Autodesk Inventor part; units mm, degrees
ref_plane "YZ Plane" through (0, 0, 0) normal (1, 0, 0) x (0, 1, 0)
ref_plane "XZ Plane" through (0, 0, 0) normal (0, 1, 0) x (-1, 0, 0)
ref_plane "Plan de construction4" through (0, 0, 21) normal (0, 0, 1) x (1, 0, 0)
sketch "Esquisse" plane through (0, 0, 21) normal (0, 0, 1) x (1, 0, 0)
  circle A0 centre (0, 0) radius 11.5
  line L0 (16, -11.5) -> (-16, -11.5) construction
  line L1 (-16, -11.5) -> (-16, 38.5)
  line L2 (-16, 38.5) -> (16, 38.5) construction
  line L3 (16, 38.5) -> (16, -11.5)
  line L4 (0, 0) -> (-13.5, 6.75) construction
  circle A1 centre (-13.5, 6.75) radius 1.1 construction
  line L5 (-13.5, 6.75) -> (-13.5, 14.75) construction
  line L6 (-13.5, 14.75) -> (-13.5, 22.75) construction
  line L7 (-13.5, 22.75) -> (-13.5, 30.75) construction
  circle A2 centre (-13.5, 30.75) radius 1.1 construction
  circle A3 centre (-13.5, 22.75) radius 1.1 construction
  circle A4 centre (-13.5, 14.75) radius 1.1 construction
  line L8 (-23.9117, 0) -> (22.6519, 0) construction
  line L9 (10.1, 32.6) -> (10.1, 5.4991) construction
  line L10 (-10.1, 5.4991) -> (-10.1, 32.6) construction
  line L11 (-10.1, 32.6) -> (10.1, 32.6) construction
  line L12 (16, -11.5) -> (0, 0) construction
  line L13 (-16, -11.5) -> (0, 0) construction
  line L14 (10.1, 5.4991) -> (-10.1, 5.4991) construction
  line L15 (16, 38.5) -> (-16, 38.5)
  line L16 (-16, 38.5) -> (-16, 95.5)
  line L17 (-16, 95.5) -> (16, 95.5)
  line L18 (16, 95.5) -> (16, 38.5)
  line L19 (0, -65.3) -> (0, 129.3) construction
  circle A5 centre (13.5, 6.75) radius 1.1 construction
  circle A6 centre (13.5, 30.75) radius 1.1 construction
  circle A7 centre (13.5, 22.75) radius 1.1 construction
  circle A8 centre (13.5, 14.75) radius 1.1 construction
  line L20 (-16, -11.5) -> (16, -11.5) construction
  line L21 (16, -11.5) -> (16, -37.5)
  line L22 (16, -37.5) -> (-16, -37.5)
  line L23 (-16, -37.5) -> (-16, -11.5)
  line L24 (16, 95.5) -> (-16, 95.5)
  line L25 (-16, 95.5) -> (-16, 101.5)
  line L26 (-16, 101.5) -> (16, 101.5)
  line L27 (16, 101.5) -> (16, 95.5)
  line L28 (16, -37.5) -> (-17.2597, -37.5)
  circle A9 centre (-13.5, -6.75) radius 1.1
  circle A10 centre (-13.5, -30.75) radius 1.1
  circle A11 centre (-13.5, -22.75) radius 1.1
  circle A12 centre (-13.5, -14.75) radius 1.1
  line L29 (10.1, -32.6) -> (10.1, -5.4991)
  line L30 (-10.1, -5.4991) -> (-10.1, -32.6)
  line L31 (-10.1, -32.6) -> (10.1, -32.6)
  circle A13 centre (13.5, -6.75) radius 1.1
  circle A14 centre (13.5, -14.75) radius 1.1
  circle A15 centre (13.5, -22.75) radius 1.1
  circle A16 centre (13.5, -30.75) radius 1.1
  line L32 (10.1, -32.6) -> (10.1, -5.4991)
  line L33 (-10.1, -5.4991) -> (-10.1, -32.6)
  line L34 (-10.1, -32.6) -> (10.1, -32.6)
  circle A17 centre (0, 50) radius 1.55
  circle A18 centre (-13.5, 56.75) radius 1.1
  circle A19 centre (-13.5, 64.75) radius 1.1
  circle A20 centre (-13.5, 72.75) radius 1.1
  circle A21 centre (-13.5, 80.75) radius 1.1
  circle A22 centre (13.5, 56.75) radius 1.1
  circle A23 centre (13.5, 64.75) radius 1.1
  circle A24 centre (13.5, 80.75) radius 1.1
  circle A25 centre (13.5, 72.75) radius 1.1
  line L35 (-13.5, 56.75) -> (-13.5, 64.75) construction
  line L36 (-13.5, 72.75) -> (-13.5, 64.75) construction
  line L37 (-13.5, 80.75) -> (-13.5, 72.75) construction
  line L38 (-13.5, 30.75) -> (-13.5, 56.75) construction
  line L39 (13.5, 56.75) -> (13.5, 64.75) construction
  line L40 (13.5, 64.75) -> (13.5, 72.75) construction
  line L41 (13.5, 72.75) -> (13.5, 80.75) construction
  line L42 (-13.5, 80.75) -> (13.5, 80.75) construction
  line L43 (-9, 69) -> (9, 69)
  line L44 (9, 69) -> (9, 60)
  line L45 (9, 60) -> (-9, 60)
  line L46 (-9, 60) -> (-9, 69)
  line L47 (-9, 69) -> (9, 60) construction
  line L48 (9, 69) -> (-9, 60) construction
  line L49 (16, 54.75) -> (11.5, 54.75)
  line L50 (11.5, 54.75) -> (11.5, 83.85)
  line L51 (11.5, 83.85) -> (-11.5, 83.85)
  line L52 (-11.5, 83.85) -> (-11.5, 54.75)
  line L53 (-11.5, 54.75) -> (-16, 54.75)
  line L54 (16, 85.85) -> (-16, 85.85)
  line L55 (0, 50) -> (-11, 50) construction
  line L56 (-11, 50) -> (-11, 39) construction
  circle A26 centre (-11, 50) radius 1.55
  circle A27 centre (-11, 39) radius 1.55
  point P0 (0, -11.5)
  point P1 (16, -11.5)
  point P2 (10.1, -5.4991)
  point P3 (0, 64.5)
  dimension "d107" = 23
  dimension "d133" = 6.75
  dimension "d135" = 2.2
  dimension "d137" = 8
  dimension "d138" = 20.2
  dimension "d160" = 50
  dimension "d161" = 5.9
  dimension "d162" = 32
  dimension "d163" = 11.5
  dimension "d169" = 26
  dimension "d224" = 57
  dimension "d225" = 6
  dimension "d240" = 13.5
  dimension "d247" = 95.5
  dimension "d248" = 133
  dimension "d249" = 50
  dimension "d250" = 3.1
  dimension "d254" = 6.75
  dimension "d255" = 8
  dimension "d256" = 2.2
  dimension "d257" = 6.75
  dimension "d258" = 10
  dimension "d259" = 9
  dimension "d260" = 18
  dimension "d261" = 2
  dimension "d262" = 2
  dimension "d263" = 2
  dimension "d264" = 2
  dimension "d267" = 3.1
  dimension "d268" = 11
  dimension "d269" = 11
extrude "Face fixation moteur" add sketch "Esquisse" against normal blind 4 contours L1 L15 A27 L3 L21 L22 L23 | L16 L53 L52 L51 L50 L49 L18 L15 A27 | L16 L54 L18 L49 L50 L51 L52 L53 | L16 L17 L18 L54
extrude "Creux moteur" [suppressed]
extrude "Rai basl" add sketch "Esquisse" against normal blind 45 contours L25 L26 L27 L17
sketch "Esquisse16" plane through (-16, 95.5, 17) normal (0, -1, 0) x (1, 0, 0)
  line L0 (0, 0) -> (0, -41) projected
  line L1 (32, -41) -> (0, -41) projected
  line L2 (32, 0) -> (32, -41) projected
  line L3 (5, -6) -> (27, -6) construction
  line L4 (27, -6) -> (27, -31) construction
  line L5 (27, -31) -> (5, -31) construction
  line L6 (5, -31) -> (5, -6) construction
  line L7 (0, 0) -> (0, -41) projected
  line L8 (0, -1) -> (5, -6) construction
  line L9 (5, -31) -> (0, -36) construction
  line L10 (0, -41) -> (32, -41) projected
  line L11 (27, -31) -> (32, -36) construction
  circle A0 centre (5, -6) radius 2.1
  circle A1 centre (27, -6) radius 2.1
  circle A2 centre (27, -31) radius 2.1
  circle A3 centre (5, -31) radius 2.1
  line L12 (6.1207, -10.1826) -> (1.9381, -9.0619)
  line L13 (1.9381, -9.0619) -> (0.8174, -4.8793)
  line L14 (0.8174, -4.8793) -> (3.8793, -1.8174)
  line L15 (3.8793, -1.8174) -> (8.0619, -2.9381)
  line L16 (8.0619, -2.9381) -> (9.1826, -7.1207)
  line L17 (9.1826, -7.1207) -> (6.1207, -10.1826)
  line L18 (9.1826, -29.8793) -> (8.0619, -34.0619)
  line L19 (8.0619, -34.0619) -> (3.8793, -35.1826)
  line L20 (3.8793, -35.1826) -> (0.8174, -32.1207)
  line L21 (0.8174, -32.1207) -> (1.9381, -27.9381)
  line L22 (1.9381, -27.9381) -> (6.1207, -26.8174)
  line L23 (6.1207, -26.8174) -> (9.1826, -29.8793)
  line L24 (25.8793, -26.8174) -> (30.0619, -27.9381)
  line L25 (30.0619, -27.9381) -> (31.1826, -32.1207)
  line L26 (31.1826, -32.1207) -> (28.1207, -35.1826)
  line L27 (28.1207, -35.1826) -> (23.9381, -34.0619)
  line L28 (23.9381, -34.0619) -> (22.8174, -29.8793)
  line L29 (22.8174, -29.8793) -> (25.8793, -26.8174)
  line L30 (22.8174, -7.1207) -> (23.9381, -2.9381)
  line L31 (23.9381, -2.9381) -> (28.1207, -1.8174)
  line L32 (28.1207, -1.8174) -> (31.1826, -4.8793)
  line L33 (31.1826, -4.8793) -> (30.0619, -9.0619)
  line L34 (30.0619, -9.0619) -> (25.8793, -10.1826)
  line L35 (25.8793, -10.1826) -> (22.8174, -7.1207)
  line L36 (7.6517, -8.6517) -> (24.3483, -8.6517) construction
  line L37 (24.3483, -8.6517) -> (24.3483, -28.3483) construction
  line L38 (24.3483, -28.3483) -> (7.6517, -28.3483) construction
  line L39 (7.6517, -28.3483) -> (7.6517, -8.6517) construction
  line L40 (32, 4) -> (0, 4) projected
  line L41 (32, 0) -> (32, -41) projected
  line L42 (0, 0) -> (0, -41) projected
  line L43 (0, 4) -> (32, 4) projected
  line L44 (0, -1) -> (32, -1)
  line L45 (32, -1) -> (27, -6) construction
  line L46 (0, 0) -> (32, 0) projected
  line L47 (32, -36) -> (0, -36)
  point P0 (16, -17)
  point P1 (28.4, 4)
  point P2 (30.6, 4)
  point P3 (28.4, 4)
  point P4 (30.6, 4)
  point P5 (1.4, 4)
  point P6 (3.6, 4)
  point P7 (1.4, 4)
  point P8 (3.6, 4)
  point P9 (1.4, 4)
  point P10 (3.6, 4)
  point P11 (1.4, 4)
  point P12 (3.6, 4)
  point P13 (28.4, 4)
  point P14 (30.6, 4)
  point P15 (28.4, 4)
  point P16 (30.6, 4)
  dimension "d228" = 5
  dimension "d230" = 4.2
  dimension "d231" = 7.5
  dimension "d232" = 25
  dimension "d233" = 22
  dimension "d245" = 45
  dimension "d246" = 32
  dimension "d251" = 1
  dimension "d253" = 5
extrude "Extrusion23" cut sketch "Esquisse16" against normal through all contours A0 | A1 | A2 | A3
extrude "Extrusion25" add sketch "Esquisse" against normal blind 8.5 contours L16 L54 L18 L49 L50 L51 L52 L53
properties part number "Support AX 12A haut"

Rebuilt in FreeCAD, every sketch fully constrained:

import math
import FreeCAD as App
import Part
import Sketcher

doc = App.newDocument("Part")
body = doc.addObject("PartDesign::Body", "Body")

# Sketch on XY plane
sketch1 = doc.addObject("Sketcher::SketchObject", "Sketch")
body.addObject(sketch1)
sketch1.AttachmentSupport = (doc.XY_Plane, [""])
sketch1.MapMode = "FlatFace"
sketch1.AttachmentOffset = App.Placement(App.Vector(0, 0, 21), App.Rotation())
sketch1.addGeometry(Part.LineSegment(App.Vector(-16, -37.5, 0), App.Vector(16, -37.5, 0)), False)
sketch1.addGeometry(Part.LineSegment(App.Vector(16, -37.5, 0), App.Vector(16, 95.5, 0)), False)
sketch1.addGeometry(Part.LineSegment(App.Vector(16, 95.5, 0), App.Vector(-16, 95.5, 0)), False)
sketch1.addGeometry(Part.LineSegment(App.Vector(-16, 95.5, 0), App.Vector(-16, -37.5, 0)), False)
sketch1.addGeometry(Part.Circle(App.Vector(-11, 39, 0), App.Vector(0, 0, 1), 1.55), False)
sketch1.addGeometry(Part.Circle(App.Vector(-13.5, -30.75, 0), App.Vector(0, 0, 1), 1.1), False)
sketch1.addGeometry(Part.Circle(App.Vector(-13.5, -22.75, 0), App.Vector(0, 0, 1), 1.1), False)
sketch1.addGeometry(Part.Circle(App.Vector(-13.5, -14.75, 0), App.Vector(0, 0, 1), 1.1), False)
sketch1.addGeometry(Part.Circle(App.Vector(-13.5, -6.75, 0), App.Vector(0, 0, 1), 1.1), False)
sketch1.addGeometry(Part.ArcOfCircle(Part.Circle(App.Vector(0, 0, 0), App.Vector(0, 0, 1), 11.5), math.radians(-28.566761), math.radians(208.566761)), False)
sketch1.addGeometry(Part.LineSegment(App.Vector(10.1, -5.4991, 0), App.Vector(10.1, -32.6, 0)), False)
sketch1.addGeometry(Part.LineSegment(App.Vector(10.1, -32.6, 0), App.Vector(-10.1, -32.6, 0)), False)
sketch1.addGeometry(Part.LineSegment(App.Vector(-10.1, -32.6, 0), App.Vector(-10.1, -5.4991, 0)), False)
sketch1.addGeometry(Part.Circle(App.Vector(13.5, -30.75, 0), App.Vector(0, 0, 1), 1.1), False)
sketch1.addGeometry(Part.Circle(App.Vector(13.5, -22.75, 0), App.Vector(0, 0, 1), 1.1), False)
sketch1.addGeometry(Part.Circle(App.Vector(13.5, -14.75, 0), App.Vector(0, 0, 1), 1.1), False)
sketch1.addGeometry(Part.Circle(App.Vector(13.5, -6.75, 0), App.Vector(0, 0, 1), 1.1), False)
sketch1.addGeometry(Part.LineSegment(App.Vector(9, 69, 0), App.Vector(9, 60, 0)), False)
sketch1.addGeometry(Part.LineSegment(App.Vector(9, 60, 0), App.Vector(-9, 60, 0)), False)
sketch1.addGeometry(Part.LineSegment(App.Vector(-9, 60, 0), App.Vector(-9, 69, 0)), False)
sketch1.addGeometry(Part.LineSegment(App.Vector(-9, 69, 0), App.Vector(9, 69, 0)), False)
sketch1.addGeometry(Part.Circle(App.Vector(-11, 50, 0), App.Vector(0, 0, 1), 1.55), False)
sketch1.addGeometry(Part.Circle(App.Vector(0, 50, 0), App.Vector(0, 0, 1), 1.55), False)
sketch1.addGeometry(Part.Circle(App.Vector(-13.5, 80.75, 0), App.Vector(0, 0, 1), 1.1), False)
sketch1.addGeometry(Part.Circle(App.Vector(13.5, 56.75, 0), App.Vector(0, 0, 1), 1.1), False)
sketch1.addGeometry(Part.Circle(App.Vector(13.5, 64.75, 0), App.Vector(0, 0, 1), 1.1), False)
sketch1.addGeometry(Part.Circle(App.Vector(13.5, 72.75, 0), App.Vector(0, 0, 1), 1.1), False)
sketch1.addGeometry(Part.Circle(App.Vector(13.5, 80.75, 0), App.Vector(0, 0, 1), 1.1), False)
sketch1.addGeometry(Part.Circle(App.Vector(-13.5, 56.75, 0), App.Vector(0, 0, 1), 1.1), False)
sketch1.addGeometry(Part.Circle(App.Vector(-13.5, 64.75, 0), App.Vector(0, 0, 1), 1.1), False)
sketch1.addGeometry(Part.Circle(App.Vector(-13.5, 72.75, 0), App.Vector(0, 0, 1), 1.1), False)
sketch1.addConstraint(Sketcher.Constraint("Coincident", 0, 2, 1, 1))
sketch1.addConstraint(Sketcher.Constraint("Coincident", 1, 2, 2, 1))
sketch1.addConstraint(Sketcher.Constraint("Coincident", 2, 2, 3, 1))
sketch1.addConstraint(Sketcher.Constraint("Coincident", 3, 2, 0, 1))
sketch1.addConstraint(Sketcher.Constraint("Coincident", 9, 1, 10, 1))
sketch1.addConstraint(Sketcher.Constraint("Coincident", 10, 2, 11, 1))
sketch1.addConstraint(Sketcher.Constraint("Coincident", 11, 2, 12, 1))
sketch1.addConstraint(Sketcher.Constraint("Coincident", 12, 2, 9, 2))
sketch1.addConstraint(Sketcher.Constraint("Coincident", 17, 2, 18, 1))
sketch1.addConstraint(Sketcher.Constraint("Coincident", 18, 2, 19, 1))
sketch1.addConstraint(Sketcher.Constraint("Coincident", 19, 2, 20, 1))
sketch1.addConstraint(Sketcher.Constraint("Coincident", 20, 2, 17, 1))
sketch1.addConstraint(Sketcher.Constraint("Horizontal", 0))
sketch1.addConstraint(Sketcher.Constraint("Vertical", 1))
sketch1.addConstraint(Sketcher.Constraint("Horizontal", 2))
sketch1.addConstraint(Sketcher.Constraint("Vertical", 3))
sketch1.addConstraint(Sketcher.Constraint("Vertical", 10))
sketch1.addConstraint(Sketcher.Constraint("Horizontal", 11))
sketch1.addConstraint(Sketcher.Constraint("Vertical", 12))
sketch1.addConstraint(Sketcher.Constraint("Vertical", 17))
sketch1.addConstraint(Sketcher.Constraint("Horizontal", 18))
sketch1.addConstraint(Sketcher.Constraint("Vertical", 19))
sketch1.addConstraint(Sketcher.Constraint("Horizontal", 20))
sketch1.addConstraint(Sketcher.Constraint("Coincident", 9, 3, -1, 1))
sketch1.addConstraint(Sketcher.Constraint("Equal", 5, 6))
sketch1.addConstraint(Sketcher.Constraint("Equal", 6, 7))
sketch1.addConstraint(Sketcher.Constraint("Equal", 7, 8))
sketch1.addConstraint(Sketcher.Constraint("Equal", 8, 13))
sketch1.addConstraint(Sketcher.Constraint("Equal", 13, 14))
sketch1.addConstraint(Sketcher.Constraint("Equal", 14, 15))
sketch1.addConstraint(Sketcher.Constraint("Equal", 15, 16))
sketch1.addConstraint(Sketcher.Constraint("Equal", 4, 21))
sketch1.addConstraint(Sketcher.Constraint("Equal", 21, 22))
sketch1.addConstraint(Sketcher.Constraint("Equal", 16, 23))
sketch1.addConstraint(Sketcher.Constraint("Equal", 23, 24))
sketch1.addConstraint(Sketcher.Constraint("Equal", 24, 25))
sketch1.addConstraint(Sketcher.Constraint("Equal", 25, 26))
sketch1.addConstraint(Sketcher.Constraint("Equal", 26, 27))
sketch1.addConstraint(Sketcher.Constraint("Equal", 27, 28))
sketch1.addConstraint(Sketcher.Constraint("Equal", 28, 29))
sketch1.addConstraint(Sketcher.Constraint("Equal", 29, 30))
sketch1.addConstraint(Sketcher.Constraint("Symmetric", 5, 3, 13, 3, -2))
sketch1.addConstraint(Sketcher.Constraint("Symmetric", 6, 3, 14, 3, -2))
sketch1.addConstraint(Sketcher.Constraint("Symmetric", 7, 3, 15, 3, -2))
sketch1.addConstraint(Sketcher.Constraint("Symmetric", 8, 3, 16, 3, -2))
sketch1.addConstraint(Sketcher.Constraint("Symmetric", 23, 3, 27, 3, -2))
sketch1.addConstraint(Sketcher.Constraint("Symmetric", 24, 3, 28, 3, -2))
sketch1.addConstraint(Sketcher.Constraint("Symmetric", 25, 3, 29, 3, -2))
sketch1.addConstraint(Sketcher.Constraint("Symmetric", 26, 3, 30, 3, -2))
sketch1.addConstraint(Sketcher.Constraint("PointOnObject", 22, 3, -2))
sketch1.addConstraint(Sketcher.Constraint("Horizontal", 21, 3, 22, 3))
sketch1.addConstraint(Sketcher.Constraint("Horizontal", 9, 1, 12, 2))
sketch1.addConstraint(Sketcher.Constraint("Vertical", 5, 3, 6, 3))
sketch1.addConstraint(Sketcher.Constraint("Vertical", 6, 3, 7, 3))
sketch1.addConstraint(Sketcher.Constraint("Vertical", 7, 3, 8, 3))
sketch1.addConstraint(Sketcher.Constraint("Vertical", 4, 3, 21, 3))
sketch1.addConstraint(Sketcher.Constraint("Vertical", 8, 3, 23, 3))
sketch1.addConstraint(Sketcher.Constraint("Vertical", 16, 3, 24, 3))
sketch1.addConstraint(Sketcher.Constraint("Vertical", 24, 3, 25, 3))
sketch1.addConstraint(Sketcher.Constraint("Vertical", 25, 3, 26, 3))
sketch1.addConstraint(Sketcher.Constraint("Diameter", 4, 3.1))
sketch1.addConstraint(Sketcher.Constraint("Diameter", 5, 2.2))
sketch1.addConstraint(Sketcher.Constraint("Radius", 9, 11.5))
sketch1.addConstraint(Sketcher.Constraint("DistanceX", 0, 1, 0, 2, 32.0))
sketch1.addConstraint(Sketcher.Constraint("DistanceX", 18, 2, 18, 1, 18.0))
sketch1.addConstraint(Sketcher.Constraint("DistanceY", 1, 1, 1, 2, 133.0))
sketch1.addConstraint(Sketcher.Constraint("DistanceY", 17, 2, 17, 1, 9.0))
sketch1.addConstraint(Sketcher.Constraint("DistanceX", 11, 2, 11, 1, 20.2))
sketch1.addConstraint(Sketcher.Constraint("DistanceX", 4, 3, -1, 1, 11.0))
sketch1.addConstraint(Sketcher.Constraint("DistanceY", -1, 1, 21, 3, 50.0))
sketch1.addConstraint(Sketcher.Constraint("DistanceX", -1, 1, 17, 2, 9.0))
sketch1.addConstraint(Sketcher.Constraint("DistanceY", 5, 3, 6, 3, 8.0))
sketch1.addConstraint(Sketcher.Constraint("DistanceY", 6, 3, 7, 3, 8.0))
sketch1.addConstraint(Sketcher.Constraint("DistanceY", 7, 3, 8, 3, 8.0))
sketch1.addConstraint(Sketcher.Constraint("DistanceY", 4, 3, 21, 3, 11.0))
sketch1.addConstraint(Sketcher.Constraint("DistanceY", 24, 3, 25, 3, 8.0))
sketch1.addConstraint(Sketcher.Constraint("DistanceY", 25, 3, 26, 3, 8.0))
sketch1.addConstraint(Sketcher.Constraint("DistanceY", 26, 3, 23, 3, 8.0))
sketch1.addConstraint(Sketcher.Constraint("DistanceY", 22, 3, 17, 2, 10.0))
sketch1.addConstraint(Sketcher.Constraint("DistanceX", 5, 3, -1, 1, 13.5))
sketch1.addConstraint(Sketcher.Constraint("DistanceY", -1, 1, 1, 2, 95.5))
sketch1.addConstraint(Sketcher.Constraint("DistanceX", 10, 2, 0, 2, 5.9))
sketch1.addConstraint(Sketcher.Constraint("DistanceY", 8, 3, -1, 1, 6.75))
sketch1.addConstraint(Sketcher.Constraint("DistanceY", 22, 3, 24, 3, 6.75))
sketch1.addConstraint(Sketcher.Constraint("DistanceY", 10, 2, -1, 1, 32.6))
pad1 = doc.addObject("PartDesign::Pad", "Pad")
body.addObject(pad1)
pad1.Profile = sketch1
pad1.Length = 4
pad1.Reversed = True

# Sketch on XY plane
sketch2 = doc.addObject("Sketcher::SketchObject", "Sketch001")
body.addObject(sketch2)
sketch2.AttachmentSupport = (doc.XY_Plane, [""])
sketch2.MapMode = "FlatFace"
sketch2.AttachmentOffset = App.Placement(App.Vector(0, 0, 21), App.Rotation())
sketch2.addGeometry(Part.LineSegment(App.Vector(-16, 101.5, 0), App.Vector(-16, 95.5, 0)), False)
sketch2.addGeometry(Part.LineSegment(App.Vector(-16, 95.5, 0), App.Vector(16, 95.5, 0)), False)
sketch2.addGeometry(Part.LineSegment(App.Vector(16, 95.5, 0), App.Vector(16, 101.5, 0)), False)
sketch2.addGeometry(Part.LineSegment(App.Vector(16, 101.5, 0), App.Vector(-16, 101.5, 0)), False)
sketch2.addConstraint(Sketcher.Constraint("Coincident", 0, 2, 1, 1))
sketch2.addConstraint(Sketcher.Constraint("Coincident", 1, 2, 2, 1))
sketch2.addConstraint(Sketcher.Constraint("Coincident", 2, 2, 3, 1))
sketch2.addConstraint(Sketcher.Constraint("Coincident", 3, 2, 0, 1))
sketch2.addConstraint(Sketcher.Constraint("Vertical", 0))
sketch2.addConstraint(Sketcher.Constraint("Horizontal", 1))
sketch2.addConstraint(Sketcher.Constraint("Vertical", 2))
sketch2.addConstraint(Sketcher.Constraint("Horizontal", 3))
sketch2.addConstraint(Sketcher.Constraint("DistanceX", 1, 1, 1, 2, 32.0))
sketch2.addConstraint(Sketcher.Constraint("DistanceY", 0, 2, 0, 1, 6.0))
sketch2.addConstraint(Sketcher.Constraint("DistanceY", -1, 1, 0, 2, 95.5))
sketch2.addConstraint(Sketcher.Constraint("DistanceX", 0, 2, -1, 1, 16.0))
pad2 = doc.addObject("PartDesign::Pad", "Pad001")
body.addObject(pad2)
pad2.Profile = sketch2
pad2.Length = 45
pad2.Reversed = True

# Sketch on XZ plane
sketch3 = doc.addObject("Sketcher::SketchObject", "Sketch002")
body.addObject(sketch3)
sketch3.AttachmentSupport = (doc.XZ_Plane, [""])
sketch3.MapMode = "FlatFace"
sketch3.AttachmentOffset = App.Placement(App.Vector(0, 0, -95.5), App.Rotation())
sketch3.addGeometry(Part.Circle(App.Vector(-11, 11, 0), App.Vector(0, 0, 1), 2.1), False)
sketch3.addGeometry(Part.Circle(App.Vector(11, 11, 0), App.Vector(0, 0, 1), 2.1), False)
sketch3.addGeometry(Part.Circle(App.Vector(11, -14, 0), App.Vector(0, 0, 1), 2.1), False)
sketch3.addGeometry(Part.Circle(App.Vector(-11, -14, 0), App.Vector(0, 0, 1), 2.1), False)
sketch3.addConstraint(Sketcher.Constraint("Equal", 0, 1))
sketch3.addConstraint(Sketcher.Constraint("Equal", 1, 2))
sketch3.addConstraint(Sketcher.Constraint("Equal", 2, 3))
sketch3.addConstraint(Sketcher.Constraint("Symmetric", 0, 3, 1, 3, -2))
sketch3.addConstraint(Sketcher.Constraint("Symmetric", 2, 3, 3, 3, -2))
sketch3.addConstraint(Sketcher.Constraint("Vertical", 1, 3, 2, 3))
sketch3.addConstraint(Sketcher.Constraint("Diameter", 0, 4.2))
sketch3.addConstraint(Sketcher.Constraint("DistanceX", 0, 3, 1, 3, 22.0))
sketch3.addConstraint(Sketcher.Constraint("DistanceY", 2, 3, 1, 3, 25.0))
sketch3.addConstraint(Sketcher.Constraint("DistanceY", -1, 1, 0, 3, 11.0))
pocket1 = doc.addObject("PartDesign::Pocket", "Pocket")
body.addObject(pocket1)
pocket1.Profile = sketch3
pocket1.Type = "ThroughAll"

# Sketch on XY plane
sketch4 = doc.addObject("Sketcher::SketchObject", "Sketch003")
body.addObject(sketch4)
sketch4.AttachmentSupport = (doc.XY_Plane, [""])
sketch4.MapMode = "FlatFace"
sketch4.AttachmentOffset = App.Placement(App.Vector(0, 0, 21), App.Rotation())
sketch4.addGeometry(Part.LineSegment(App.Vector(-16, 85.85, 0), App.Vector(-16, 54.75, 0)), False)
sketch4.addGeometry(Part.LineSegment(App.Vector(-16, 54.75, 0), App.Vector(-11.5, 54.75, 0)), False)
sketch4.addGeometry(Part.LineSegment(App.Vector(-11.5, 54.75, 0), App.Vector(-11.5, 83.85, 0)), False)
sketch4.addGeometry(Part.LineSegment(App.Vector(-11.5, 83.85, 0), App.Vector(11.5, 83.85, 0)), False)
sketch4.addGeometry(Part.LineSegment(App.Vector(11.5, 83.85, 0), App.Vector(11.5, 54.75, 0)), False)
sketch4.addGeometry(Part.LineSegment(App.Vector(11.5, 54.75, 0), App.Vector(16, 54.75, 0)), False)
sketch4.addGeometry(Part.LineSegment(App.Vector(16, 54.75, 0), App.Vector(16, 85.85, 0)), False)
sketch4.addGeometry(Part.LineSegment(App.Vector(16, 85.85, 0), App.Vector(-16, 85.85, 0)), False)
sketch4.addGeometry(Part.Circle(App.Vector(-13.5, 56.75, 0), App.Vector(0, 0, 1), 1.1), False)
sketch4.addGeometry(Part.Circle(App.Vector(-13.5, 64.75, 0), App.Vector(0, 0, 1), 1.1), False)
sketch4.addGeometry(Part.Circle(App.Vector(-13.5, 72.75, 0), App.Vector(0, 0, 1), 1.1), False)
sketch4.addGeometry(Part.Circle(App.Vector(-13.5, 80.75, 0), App.Vector(0, 0, 1), 1.1), False)
sketch4.addGeometry(Part.Circle(App.Vector(13.5, 56.75, 0), App.Vector(0, 0, 1), 1.1), False)
sketch4.addGeometry(Part.Circle(App.Vector(13.5, 64.75, 0), App.Vector(0, 0, 1), 1.1), False)
sketch4.addGeometry(Part.Circle(App.Vector(13.5, 72.75, 0), App.Vector(0, 0, 1), 1.1), False)
sketch4.addGeometry(Part.Circle(App.Vector(13.5, 80.75, 0), App.Vector(0, 0, 1), 1.1), False)
sketch4.addConstraint(Sketcher.Constraint("Coincident", 0, 2, 1, 1))
sketch4.addConstraint(Sketcher.Constraint("Coincident", 1, 2, 2, 1))
sketch4.addConstraint(Sketcher.Constraint("Coincident", 2, 2, 3, 1))
sketch4.addConstraint(Sketcher.Constraint("Coincident", 3, 2, 4, 1))
sketch4.addConstraint(Sketcher.Constraint("Coincident", 4, 2, 5, 1))
sketch4.addConstraint(Sketcher.Constraint("Coincident", 5, 2, 6, 1))
sketch4.addConstraint(Sketcher.Constraint("Coincident", 6, 2, 7, 1))
sketch4.addConstraint(Sketcher.Constraint("Coincident", 7, 2, 0, 1))
sketch4.addConstraint(Sketcher.Constraint("Vertical", 0))
sketch4.addConstraint(Sketcher.Constraint("Horizontal", 1))
sketch4.addConstraint(Sketcher.Constraint("Vertical", 2))
sketch4.addConstraint(Sketcher.Constraint("Horizontal", 3))
sketch4.addConstraint(Sketcher.Constraint("Vertical", 4))
sketch4.addConstraint(Sketcher.Constraint("Horizontal", 5))
sketch4.addConstraint(Sketcher.Constraint("Vertical", 6))
sketch4.addConstraint(Sketcher.Constraint("Horizontal", 7))
sketch4.addConstraint(Sketcher.Constraint("Equal", 8, 9))
sketch4.addConstraint(Sketcher.Constraint("Equal", 9, 10))
sketch4.addConstraint(Sketcher.Constraint("Equal", 10, 11))
sketch4.addConstraint(Sketcher.Constraint("Equal", 11, 12))
sketch4.addConstraint(Sketcher.Constraint("Equal", 12, 13))
sketch4.addConstraint(Sketcher.Constraint("Equal", 13, 14))
sketch4.addConstraint(Sketcher.Constraint("Equal", 14, 15))
sketch4.addConstraint(Sketcher.Constraint("Symmetric", 8, 3, 12, 3, -2))
sketch4.addConstraint(Sketcher.Constraint("Symmetric", 9, 3, 13, 3, -2))
sketch4.addConstraint(Sketcher.Constraint("Symmetric", 10, 3, 14, 3, -2))
sketch4.addConstraint(Sketcher.Constraint("Symmetric", 11, 3, 15, 3, -2))
sketch4.addConstraint(Sketcher.Constraint("Symmetric", 1, 2, 4, 2, -2))
sketch4.addConstraint(Sketcher.Constraint("Vertical", 8, 3, 9, 3))
sketch4.addConstraint(Sketcher.Constraint("Vertical", 9, 3, 10, 3))
sketch4.addConstraint(Sketcher.Constraint("Vertical", 10, 3, 11, 3))
sketch4.addConstraint(Sketcher.Constraint("Equal", 1, 5))
sketch4.addConstraint(Sketcher.Constraint("Diameter", 8, 2.2))
sketch4.addConstraint(Sketcher.Constraint("DistanceX", 3, 1, 3, 2, 23.0))
sketch4.addConstraint(Sketcher.Constraint("DistanceX", 7, 2, 7, 1, 32.0))
sketch4.addConstraint(Sketcher.Constraint("DistanceY", 8, 3, 9, 3, 8.0))
sketch4.addConstraint(Sketcher.Constraint("DistanceY", 9, 3, 10, 3, 8.0))
sketch4.addConstraint(Sketcher.Constraint("DistanceY", 10, 3, 11, 3, 8.0))
sketch4.addConstraint(Sketcher.Constraint("DistanceY", 0, 2, 8, 3, 2.0))
sketch4.addConstraint(Sketcher.Constraint("DistanceX", 8, 3, 1, 2, 2.0))
sketch4.addConstraint(Sketcher.Constraint("DistanceY", 3, 2, 6, 2, 2.0))
sketch4.addConstraint(Sketcher.Constraint("DistanceY", 11, 3, 2, 2, 3.1))
sketch4.addConstraint(Sketcher.Constraint("DistanceY", -1, 1, 8, 3, 56.75))
pad3 = doc.addObject("PartDesign::Pad", "Pad002")
body.addObject(pad3)
pad3.Profile = sketch4
pad3.Length = 8.5
pad3.Reversed = True

doc.recompute()
